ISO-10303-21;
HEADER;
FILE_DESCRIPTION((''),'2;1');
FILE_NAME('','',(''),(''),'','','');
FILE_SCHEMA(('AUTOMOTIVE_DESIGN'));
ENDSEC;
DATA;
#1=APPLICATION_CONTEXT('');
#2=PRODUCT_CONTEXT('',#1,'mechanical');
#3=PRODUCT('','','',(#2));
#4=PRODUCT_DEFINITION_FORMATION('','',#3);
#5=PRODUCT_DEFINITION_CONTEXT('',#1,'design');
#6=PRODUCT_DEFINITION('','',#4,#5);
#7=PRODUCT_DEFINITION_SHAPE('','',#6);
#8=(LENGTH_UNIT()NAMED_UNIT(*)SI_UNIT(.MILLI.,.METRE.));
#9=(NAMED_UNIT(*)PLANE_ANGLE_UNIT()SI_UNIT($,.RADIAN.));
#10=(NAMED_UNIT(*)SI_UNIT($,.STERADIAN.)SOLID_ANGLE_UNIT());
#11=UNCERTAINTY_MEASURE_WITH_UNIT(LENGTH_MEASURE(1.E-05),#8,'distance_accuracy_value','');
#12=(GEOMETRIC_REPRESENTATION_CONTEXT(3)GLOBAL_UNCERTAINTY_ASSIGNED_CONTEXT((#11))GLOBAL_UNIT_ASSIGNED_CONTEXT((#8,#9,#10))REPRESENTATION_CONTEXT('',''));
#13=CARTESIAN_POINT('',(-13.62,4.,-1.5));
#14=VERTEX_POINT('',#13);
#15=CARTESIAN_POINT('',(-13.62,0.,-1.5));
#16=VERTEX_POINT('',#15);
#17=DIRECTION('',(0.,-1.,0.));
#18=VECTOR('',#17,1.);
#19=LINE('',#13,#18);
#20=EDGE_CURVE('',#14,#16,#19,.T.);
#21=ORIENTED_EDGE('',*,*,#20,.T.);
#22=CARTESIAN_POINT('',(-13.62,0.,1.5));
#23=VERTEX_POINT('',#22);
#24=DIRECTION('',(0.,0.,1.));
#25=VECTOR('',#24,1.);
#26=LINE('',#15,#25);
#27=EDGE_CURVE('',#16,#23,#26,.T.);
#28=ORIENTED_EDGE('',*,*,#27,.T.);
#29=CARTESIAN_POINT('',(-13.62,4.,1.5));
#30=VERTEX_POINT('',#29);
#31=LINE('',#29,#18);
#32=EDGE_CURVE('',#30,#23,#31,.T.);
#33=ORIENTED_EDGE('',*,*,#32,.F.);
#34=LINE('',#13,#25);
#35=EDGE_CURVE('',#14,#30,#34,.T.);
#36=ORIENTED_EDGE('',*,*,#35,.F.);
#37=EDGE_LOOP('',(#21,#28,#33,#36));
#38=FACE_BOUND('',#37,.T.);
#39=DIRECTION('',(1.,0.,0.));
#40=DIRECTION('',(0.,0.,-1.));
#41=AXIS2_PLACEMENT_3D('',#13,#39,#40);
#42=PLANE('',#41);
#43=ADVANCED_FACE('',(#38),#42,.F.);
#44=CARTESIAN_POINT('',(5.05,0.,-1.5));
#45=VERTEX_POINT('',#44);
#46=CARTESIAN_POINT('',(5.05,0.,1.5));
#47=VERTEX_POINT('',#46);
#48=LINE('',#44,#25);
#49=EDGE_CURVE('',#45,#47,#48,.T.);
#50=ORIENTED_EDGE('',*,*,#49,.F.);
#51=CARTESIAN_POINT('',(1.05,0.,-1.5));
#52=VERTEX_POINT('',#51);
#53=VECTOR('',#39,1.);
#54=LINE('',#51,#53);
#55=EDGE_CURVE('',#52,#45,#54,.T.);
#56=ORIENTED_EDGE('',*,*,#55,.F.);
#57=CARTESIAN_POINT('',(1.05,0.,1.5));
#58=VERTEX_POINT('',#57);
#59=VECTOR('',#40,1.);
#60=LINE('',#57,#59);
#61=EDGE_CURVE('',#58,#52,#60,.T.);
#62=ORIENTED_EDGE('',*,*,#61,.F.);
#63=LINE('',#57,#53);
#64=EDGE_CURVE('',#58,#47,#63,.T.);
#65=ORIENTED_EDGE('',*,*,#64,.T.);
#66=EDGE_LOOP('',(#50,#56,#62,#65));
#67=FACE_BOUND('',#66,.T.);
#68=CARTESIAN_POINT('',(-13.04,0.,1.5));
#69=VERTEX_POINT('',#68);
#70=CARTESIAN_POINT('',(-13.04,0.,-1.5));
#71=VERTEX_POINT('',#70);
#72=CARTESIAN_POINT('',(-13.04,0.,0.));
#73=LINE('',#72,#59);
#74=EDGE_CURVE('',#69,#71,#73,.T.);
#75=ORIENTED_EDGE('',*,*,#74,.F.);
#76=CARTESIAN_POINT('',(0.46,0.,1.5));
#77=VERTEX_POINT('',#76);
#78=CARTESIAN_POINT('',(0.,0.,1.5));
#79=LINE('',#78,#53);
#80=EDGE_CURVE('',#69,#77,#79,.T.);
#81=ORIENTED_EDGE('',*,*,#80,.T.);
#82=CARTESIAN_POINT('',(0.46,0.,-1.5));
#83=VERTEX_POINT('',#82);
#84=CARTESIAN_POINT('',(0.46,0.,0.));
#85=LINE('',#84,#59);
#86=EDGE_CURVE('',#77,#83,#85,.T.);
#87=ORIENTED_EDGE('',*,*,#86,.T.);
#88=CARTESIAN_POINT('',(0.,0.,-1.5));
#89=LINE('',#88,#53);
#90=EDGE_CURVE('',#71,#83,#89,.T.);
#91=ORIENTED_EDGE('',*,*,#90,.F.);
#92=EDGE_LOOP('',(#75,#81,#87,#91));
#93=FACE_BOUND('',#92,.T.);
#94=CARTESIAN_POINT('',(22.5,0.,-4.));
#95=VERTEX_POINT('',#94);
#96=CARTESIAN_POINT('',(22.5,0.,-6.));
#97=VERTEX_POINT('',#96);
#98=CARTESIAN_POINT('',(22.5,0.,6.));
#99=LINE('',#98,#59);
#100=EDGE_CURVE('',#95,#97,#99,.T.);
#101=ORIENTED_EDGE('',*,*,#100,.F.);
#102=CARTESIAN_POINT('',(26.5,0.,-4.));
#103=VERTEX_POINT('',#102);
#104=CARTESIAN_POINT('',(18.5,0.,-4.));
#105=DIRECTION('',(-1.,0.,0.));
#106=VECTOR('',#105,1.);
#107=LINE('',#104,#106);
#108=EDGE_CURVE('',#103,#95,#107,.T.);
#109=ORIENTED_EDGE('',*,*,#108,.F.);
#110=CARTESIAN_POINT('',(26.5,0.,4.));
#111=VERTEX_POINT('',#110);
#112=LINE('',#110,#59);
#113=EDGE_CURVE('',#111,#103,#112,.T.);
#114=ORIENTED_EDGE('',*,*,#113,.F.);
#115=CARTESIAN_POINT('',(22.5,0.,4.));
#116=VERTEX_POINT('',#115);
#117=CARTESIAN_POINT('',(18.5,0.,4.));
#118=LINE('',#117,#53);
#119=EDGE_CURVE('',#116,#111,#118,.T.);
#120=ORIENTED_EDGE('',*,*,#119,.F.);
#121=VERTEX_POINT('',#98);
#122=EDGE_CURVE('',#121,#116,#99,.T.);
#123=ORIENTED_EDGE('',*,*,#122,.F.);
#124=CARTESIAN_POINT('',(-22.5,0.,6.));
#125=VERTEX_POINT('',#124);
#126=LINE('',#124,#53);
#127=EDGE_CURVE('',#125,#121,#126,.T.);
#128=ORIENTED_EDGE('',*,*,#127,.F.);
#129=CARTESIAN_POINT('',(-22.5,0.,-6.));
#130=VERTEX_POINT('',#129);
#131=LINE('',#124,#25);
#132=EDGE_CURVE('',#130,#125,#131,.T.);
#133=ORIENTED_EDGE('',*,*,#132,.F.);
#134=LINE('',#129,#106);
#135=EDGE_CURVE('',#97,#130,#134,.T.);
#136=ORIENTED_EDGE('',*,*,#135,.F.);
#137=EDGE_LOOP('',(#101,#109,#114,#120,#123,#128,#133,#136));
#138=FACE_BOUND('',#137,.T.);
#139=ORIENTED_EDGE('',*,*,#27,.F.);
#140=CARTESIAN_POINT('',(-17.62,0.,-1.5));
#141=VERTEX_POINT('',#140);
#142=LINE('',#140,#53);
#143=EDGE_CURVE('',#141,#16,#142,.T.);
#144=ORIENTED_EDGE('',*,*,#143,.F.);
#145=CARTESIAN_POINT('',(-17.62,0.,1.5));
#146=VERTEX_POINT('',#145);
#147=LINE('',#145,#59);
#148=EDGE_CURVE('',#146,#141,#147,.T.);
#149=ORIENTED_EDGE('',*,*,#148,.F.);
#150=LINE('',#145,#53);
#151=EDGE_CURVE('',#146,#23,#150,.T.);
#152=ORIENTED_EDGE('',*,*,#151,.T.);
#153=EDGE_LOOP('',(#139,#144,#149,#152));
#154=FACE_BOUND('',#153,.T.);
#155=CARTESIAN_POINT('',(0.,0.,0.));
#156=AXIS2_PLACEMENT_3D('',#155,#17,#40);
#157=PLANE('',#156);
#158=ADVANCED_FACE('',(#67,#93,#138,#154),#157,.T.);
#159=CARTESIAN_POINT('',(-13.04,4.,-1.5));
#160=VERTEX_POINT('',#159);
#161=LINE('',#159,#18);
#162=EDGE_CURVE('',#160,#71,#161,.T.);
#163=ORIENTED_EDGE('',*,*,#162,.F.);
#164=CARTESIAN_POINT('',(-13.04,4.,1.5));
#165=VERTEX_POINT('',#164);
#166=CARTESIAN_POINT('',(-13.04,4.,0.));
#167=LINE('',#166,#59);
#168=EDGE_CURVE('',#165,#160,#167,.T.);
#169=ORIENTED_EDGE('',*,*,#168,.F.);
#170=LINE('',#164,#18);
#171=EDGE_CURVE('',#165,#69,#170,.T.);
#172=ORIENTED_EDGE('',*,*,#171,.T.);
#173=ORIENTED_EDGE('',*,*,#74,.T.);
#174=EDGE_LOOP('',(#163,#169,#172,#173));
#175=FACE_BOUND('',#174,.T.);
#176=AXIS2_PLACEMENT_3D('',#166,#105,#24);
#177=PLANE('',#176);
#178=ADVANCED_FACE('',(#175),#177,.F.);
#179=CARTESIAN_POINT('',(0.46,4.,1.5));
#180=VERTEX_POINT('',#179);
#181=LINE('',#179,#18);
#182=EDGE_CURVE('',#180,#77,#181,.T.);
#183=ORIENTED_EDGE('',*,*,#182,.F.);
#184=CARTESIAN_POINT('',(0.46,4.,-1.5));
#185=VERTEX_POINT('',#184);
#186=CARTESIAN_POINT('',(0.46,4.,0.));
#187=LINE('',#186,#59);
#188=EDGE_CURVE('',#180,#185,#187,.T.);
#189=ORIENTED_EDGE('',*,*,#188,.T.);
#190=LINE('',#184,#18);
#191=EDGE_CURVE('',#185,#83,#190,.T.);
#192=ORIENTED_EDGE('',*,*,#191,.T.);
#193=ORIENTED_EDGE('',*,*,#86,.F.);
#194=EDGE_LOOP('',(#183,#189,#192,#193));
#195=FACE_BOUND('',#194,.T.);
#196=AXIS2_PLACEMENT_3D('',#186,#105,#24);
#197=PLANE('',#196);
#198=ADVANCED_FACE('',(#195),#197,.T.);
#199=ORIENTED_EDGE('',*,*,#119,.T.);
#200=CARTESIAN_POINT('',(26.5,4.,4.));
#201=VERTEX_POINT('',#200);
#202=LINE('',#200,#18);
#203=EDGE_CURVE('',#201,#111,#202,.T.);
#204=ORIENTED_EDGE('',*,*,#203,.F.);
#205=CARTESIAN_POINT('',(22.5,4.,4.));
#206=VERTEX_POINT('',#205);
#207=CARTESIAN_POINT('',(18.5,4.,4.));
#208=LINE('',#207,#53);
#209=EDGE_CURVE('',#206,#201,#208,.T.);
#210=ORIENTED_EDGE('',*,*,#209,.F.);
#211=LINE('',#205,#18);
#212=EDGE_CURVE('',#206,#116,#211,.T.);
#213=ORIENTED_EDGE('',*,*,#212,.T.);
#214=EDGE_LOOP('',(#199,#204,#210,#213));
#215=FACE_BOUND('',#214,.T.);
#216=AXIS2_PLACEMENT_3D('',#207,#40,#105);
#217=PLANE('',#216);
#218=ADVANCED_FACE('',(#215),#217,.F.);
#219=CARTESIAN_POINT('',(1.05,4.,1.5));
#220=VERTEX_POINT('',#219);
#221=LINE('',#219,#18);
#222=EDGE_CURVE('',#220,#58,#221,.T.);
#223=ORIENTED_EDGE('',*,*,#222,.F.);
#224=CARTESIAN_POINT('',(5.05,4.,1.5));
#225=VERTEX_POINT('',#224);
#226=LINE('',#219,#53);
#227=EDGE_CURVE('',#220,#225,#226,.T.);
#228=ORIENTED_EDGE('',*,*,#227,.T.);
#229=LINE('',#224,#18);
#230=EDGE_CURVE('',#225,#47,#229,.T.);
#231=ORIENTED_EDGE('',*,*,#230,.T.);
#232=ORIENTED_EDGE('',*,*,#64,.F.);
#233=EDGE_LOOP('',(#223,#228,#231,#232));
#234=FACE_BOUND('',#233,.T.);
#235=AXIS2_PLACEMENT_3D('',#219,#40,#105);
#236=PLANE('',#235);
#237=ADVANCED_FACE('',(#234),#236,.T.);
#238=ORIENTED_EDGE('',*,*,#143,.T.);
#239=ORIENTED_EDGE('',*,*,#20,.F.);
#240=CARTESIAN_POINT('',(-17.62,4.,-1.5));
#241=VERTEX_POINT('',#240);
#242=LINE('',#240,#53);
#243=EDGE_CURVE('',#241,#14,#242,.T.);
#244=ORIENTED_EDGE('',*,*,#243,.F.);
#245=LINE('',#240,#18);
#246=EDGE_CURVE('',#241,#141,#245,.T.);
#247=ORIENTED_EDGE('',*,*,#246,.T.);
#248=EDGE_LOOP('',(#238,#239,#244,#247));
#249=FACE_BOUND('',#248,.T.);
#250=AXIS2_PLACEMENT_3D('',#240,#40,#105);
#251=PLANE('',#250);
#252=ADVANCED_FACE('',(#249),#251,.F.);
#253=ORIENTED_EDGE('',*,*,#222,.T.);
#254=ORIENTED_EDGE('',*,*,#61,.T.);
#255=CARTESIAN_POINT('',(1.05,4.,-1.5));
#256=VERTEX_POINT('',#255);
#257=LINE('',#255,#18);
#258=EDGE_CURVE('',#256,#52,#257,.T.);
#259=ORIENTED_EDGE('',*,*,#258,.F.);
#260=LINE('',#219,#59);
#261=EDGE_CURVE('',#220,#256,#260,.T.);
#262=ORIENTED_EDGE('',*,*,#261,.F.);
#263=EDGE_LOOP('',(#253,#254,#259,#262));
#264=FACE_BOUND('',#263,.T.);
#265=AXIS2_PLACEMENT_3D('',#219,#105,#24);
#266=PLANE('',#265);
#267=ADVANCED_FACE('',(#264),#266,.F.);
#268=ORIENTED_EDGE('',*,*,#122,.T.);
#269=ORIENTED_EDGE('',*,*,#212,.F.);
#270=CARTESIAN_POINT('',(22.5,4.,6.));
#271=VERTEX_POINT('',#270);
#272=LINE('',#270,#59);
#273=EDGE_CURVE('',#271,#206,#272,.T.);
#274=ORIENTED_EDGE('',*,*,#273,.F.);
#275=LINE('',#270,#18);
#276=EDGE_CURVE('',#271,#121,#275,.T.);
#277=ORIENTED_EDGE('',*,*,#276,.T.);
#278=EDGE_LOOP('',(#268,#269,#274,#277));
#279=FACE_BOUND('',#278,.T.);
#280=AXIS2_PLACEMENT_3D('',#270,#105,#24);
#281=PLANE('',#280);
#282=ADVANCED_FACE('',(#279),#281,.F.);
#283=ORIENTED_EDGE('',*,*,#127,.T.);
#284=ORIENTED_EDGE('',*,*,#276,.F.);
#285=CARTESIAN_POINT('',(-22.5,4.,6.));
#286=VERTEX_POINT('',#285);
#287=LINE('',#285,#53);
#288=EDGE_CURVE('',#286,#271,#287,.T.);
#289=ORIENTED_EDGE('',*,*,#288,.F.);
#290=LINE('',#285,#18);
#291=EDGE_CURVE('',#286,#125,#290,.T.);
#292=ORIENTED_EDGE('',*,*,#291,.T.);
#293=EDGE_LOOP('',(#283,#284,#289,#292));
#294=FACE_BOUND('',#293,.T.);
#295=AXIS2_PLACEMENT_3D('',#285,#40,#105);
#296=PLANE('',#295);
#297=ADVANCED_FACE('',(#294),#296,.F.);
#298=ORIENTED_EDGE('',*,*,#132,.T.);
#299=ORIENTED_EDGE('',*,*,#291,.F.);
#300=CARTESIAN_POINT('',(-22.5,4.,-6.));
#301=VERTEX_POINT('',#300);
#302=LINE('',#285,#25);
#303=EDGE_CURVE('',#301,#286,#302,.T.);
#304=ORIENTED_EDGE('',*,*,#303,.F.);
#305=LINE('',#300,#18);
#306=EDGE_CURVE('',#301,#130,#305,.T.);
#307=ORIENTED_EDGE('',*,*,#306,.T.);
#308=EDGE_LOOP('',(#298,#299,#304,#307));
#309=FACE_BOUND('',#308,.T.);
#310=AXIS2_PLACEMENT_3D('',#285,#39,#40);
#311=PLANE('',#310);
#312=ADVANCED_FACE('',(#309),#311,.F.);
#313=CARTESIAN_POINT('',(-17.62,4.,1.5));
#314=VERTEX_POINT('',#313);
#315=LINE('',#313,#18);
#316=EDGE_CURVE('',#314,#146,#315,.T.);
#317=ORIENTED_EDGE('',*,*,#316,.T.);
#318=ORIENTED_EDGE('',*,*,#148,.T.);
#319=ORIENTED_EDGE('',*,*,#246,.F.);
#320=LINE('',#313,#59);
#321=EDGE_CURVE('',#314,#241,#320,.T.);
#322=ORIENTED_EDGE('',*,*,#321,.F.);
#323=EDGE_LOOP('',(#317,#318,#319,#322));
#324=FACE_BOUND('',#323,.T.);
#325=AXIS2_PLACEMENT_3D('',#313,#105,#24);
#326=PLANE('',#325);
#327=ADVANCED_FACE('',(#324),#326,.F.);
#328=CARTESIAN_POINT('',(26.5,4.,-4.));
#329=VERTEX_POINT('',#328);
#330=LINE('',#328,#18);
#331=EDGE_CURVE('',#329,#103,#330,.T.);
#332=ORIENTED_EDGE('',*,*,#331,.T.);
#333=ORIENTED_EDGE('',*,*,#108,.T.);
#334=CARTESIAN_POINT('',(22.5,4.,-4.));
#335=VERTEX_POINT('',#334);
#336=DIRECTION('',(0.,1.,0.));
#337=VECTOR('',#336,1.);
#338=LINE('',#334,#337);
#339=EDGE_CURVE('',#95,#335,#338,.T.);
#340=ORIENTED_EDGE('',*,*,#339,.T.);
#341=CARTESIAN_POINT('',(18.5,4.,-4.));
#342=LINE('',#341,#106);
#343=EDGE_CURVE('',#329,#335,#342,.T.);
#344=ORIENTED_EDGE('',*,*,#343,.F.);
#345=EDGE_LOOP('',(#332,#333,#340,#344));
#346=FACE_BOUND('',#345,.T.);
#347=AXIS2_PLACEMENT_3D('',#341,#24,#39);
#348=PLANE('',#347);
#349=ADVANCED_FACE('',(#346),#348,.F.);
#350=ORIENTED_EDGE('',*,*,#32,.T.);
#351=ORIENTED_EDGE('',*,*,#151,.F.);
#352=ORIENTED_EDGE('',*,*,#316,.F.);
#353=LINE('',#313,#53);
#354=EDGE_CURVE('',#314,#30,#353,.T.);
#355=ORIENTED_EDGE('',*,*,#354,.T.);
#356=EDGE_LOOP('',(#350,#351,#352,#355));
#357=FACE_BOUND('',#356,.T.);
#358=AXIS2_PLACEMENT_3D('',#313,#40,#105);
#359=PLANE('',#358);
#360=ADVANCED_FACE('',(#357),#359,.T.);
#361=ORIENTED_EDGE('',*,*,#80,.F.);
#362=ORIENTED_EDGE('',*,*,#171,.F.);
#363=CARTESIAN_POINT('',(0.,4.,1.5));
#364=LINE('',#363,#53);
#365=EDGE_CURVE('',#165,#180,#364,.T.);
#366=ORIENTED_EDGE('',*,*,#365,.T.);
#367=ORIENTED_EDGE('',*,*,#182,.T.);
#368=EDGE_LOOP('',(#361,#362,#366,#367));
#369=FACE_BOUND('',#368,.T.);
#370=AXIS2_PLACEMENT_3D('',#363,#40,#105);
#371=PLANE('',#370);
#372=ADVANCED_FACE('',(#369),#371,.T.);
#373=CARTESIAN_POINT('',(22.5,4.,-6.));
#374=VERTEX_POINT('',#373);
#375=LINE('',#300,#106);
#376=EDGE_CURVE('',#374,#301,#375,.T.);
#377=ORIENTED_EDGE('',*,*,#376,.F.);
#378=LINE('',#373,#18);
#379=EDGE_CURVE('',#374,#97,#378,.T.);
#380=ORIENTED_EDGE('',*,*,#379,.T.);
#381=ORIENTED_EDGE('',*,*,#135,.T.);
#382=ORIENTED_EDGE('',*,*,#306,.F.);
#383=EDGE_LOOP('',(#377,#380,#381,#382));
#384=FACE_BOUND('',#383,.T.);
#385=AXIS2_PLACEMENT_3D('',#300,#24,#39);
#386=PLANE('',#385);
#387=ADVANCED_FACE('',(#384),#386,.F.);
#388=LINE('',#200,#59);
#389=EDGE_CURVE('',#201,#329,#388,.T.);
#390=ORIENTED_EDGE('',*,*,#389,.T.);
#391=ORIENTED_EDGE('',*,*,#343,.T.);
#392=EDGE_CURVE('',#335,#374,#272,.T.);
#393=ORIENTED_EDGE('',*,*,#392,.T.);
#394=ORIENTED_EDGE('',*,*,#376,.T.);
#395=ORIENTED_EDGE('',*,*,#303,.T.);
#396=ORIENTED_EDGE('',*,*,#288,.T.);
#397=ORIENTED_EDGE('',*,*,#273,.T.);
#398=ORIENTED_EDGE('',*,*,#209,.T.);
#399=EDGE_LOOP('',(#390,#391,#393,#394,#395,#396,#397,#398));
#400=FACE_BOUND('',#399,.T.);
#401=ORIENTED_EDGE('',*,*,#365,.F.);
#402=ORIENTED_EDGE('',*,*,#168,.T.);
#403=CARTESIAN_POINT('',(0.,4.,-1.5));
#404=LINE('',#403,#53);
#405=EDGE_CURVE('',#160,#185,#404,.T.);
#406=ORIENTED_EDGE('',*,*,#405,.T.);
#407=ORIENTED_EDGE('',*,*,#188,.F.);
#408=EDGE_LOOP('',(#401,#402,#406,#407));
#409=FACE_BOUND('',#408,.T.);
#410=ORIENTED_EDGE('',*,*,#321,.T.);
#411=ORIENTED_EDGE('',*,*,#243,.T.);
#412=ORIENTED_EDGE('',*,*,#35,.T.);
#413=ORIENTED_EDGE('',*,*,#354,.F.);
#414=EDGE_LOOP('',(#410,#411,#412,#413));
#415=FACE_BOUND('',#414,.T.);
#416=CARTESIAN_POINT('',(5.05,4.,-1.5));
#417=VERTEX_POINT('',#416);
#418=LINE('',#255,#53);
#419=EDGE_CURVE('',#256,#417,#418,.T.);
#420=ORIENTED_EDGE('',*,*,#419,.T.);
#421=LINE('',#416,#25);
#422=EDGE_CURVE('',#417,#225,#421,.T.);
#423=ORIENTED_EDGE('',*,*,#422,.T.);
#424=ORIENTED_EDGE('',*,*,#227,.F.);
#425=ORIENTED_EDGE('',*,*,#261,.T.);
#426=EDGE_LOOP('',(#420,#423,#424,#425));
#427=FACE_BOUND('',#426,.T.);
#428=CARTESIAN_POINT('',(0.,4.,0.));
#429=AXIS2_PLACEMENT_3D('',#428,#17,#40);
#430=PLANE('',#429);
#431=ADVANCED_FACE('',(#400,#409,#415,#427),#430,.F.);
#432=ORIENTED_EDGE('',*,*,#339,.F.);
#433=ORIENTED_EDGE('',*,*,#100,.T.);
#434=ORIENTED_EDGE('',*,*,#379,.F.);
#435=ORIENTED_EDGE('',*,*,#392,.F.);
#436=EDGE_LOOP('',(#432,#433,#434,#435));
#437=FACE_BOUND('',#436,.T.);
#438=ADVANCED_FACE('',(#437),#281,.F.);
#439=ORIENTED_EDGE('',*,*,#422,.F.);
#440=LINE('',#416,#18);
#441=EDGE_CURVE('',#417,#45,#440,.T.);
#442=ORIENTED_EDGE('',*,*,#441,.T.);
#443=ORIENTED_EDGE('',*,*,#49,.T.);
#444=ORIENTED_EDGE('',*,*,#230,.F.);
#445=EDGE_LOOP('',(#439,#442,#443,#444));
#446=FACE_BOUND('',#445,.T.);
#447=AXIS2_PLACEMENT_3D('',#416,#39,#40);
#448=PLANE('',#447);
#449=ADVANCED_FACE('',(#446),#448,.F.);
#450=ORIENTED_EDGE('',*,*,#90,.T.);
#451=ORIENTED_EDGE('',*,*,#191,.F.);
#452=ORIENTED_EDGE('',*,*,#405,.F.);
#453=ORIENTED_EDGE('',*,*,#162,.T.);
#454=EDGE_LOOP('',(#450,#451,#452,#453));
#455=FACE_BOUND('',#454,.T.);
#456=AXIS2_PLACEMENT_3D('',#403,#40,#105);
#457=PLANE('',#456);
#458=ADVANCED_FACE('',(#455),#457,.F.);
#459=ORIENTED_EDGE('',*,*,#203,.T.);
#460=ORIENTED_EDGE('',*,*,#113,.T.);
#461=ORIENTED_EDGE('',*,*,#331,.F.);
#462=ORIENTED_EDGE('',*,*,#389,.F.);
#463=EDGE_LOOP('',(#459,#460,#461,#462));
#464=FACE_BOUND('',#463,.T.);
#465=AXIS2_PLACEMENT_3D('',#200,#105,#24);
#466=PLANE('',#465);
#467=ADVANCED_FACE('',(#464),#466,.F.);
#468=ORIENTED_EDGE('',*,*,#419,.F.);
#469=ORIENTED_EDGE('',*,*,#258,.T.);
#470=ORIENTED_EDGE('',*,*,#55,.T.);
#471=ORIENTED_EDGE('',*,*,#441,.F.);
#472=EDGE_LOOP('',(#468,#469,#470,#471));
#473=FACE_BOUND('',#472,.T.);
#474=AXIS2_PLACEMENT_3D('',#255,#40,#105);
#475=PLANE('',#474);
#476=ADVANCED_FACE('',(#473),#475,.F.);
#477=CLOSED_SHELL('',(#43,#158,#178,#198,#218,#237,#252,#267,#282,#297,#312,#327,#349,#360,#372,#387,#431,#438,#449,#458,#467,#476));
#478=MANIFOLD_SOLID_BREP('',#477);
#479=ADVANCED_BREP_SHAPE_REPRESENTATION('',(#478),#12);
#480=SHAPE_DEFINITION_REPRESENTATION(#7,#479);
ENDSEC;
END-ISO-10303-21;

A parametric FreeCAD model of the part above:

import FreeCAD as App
import Part
import Sketcher


def add_polygon(sketch, points):
    """Adds a closed chain of lines whose ends are joined by coincident constraints."""
    first, n = sketch.GeometryCount, len(points)
    for a, b in zip(points, points[1:] + points[:1]):
        sketch.addGeometry(Part.LineSegment(App.Vector(*a, 0), App.Vector(*b, 0)), False)
    for i in range(n):
        sketch.addConstraint(Sketcher.Constraint("Coincident", first + i, 2, first + (i + 1) % n, 1))

doc = App.newDocument("Part")
body = doc.addObject("PartDesign::Body", "Body")

sketch1 = body.newObject("Sketcher::SketchObject", "Sketch")
sketch1.AttachmentSupport = (doc.getObject("XZ_Plane"), [""])
sketch1.MapMode = "FlatFace"
add_polygon(sketch1, [(-22.5, -6), (-22.5, 6), (22.5, 6), (22.5, -6)])
sketch1.addConstraint([
    Sketcher.Constraint("Vertical", 0),
    Sketcher.Constraint("Horizontal", 1),
    Sketcher.Constraint("Vertical", 2),
    Sketcher.Constraint("Horizontal", 3),
    Sketcher.Constraint("Symmetric", 0, 2, 2, 2, -1, 1),
    Sketcher.Constraint("DistanceX", 1, 1, 1, 2, 45.0),
    Sketcher.Constraint("DistanceY", 0, 1, 0, 2, 12.0),
])
pad1 = body.newObject("PartDesign::Pad", "Pad")
pad1.Profile = sketch1
pad1.Length = 4
pad1.Reversed = True

sketch2 = body.newObject("Sketcher::SketchObject", "Sketch001")
sketch2.AttachmentSupport = (doc.getObject("XZ_Plane"), [""])
sketch2.MapMode = "FlatFace"
add_polygon(sketch2, [(18.5, -4), (18.5, 4), (26.5, 4), (26.5, -4)])
sketch2.addConstraint([
    Sketcher.Constraint("Vertical", 0),
    Sketcher.Constraint("Horizontal", 1),
    Sketcher.Constraint("Vertical", 2),
    Sketcher.Constraint("Horizontal", 3),
    Sketcher.Constraint("Equal", 3, 0),
    Sketcher.Constraint("DistanceX", 1, 1, 1, 2, 8.0),
    Sketcher.Constraint("DistanceY", -1, 1, 0, 2, 4.0),
    Sketcher.Constraint("DistanceX", -1, 1, 0, 2, 18.5),
])
pad2 = body.newObject("PartDesign::Pad", "Pad001")
pad2.Profile = sketch2
pad2.Length = 4
pad2.Reversed = True

sketch3 = body.newObject("Sketcher::SketchObject", "Sketch002")
sketch3.AttachmentSupport = (doc.getObject("XZ_Plane"), [""])
sketch3.MapMode = "FlatFace"
add_polygon(sketch3, [(-13.04, -1.5), (-13.04, 1.5), (0.46, 1.5), (0.46, -1.5)])
sketch3.addConstraint([
    Sketcher.Constraint("Vertical", 0),
    Sketcher.Constraint("Horizontal", 1),
    Sketcher.Constraint("Vertical", 2),
    Sketcher.Constraint("Horizontal", 3),
    Sketcher.Constraint("DistanceY", 0, 1, 0, 2, 3.0),
    Sketcher.Constraint("DistanceX", 1, 1, 1, 2, 13.5),
    Sketcher.Constraint("DistanceY", -1, 1, 0, 2, 1.5),
    Sketcher.Constraint("DistanceX", 0, 2, -1, 1, 13.04),
])
pocket1 = body.newObject("PartDesign::Pocket", "Pocket")
pocket1.Profile = sketch3
pocket1.Type = "ThroughAll"

sketch4 = body.newObject("Sketcher::SketchObject", "Sketch003")
sketch4.AttachmentSupport = (doc.getObject("XZ_Plane"), [""])
sketch4.MapMode = "FlatFace"
add_polygon(sketch4, [(1.05, -1.5), (1.05, 1.5), (5.05, 1.5), (5.05, -1.5)])
sketch4.addConstraint([
    Sketcher.Constraint("Vertical", 0),
    Sketcher.Constraint("Horizontal", 1),
    Sketcher.Constraint("Vertical", 2),
    Sketcher.Constraint("Horizontal", 3),
    Sketcher.Constraint("DistanceX", 1, 1, 1, 2, 4.0),
    Sketcher.Constraint("DistanceY", 0, 1, 0, 2, 3.0),
    Sketcher.Constraint("DistanceY", -1, 1, 0, 2, 1.5),
    Sketcher.Constraint("DistanceX", -1, 1, 0, 2, 1.05),
])
pocket2 = body.newObject("PartDesign::Pocket", "Pocket001")
pocket2.Profile = sketch4
pocket2.Length = 4
doc.recompute()

linearpattern = body.newObject("PartDesign::LinearPattern", "LinearPattern")
linearpattern.Originals = [pocket2]
linearpattern.Direction = (doc.getObject("X_Axis"), [""])
linearpattern.Mode = "offset"
linearpattern.Offset = 18.67
linearpattern.Occurrences = 2
linearpattern.Reversed = True
body.Tip = linearpattern

doc.recompute()
